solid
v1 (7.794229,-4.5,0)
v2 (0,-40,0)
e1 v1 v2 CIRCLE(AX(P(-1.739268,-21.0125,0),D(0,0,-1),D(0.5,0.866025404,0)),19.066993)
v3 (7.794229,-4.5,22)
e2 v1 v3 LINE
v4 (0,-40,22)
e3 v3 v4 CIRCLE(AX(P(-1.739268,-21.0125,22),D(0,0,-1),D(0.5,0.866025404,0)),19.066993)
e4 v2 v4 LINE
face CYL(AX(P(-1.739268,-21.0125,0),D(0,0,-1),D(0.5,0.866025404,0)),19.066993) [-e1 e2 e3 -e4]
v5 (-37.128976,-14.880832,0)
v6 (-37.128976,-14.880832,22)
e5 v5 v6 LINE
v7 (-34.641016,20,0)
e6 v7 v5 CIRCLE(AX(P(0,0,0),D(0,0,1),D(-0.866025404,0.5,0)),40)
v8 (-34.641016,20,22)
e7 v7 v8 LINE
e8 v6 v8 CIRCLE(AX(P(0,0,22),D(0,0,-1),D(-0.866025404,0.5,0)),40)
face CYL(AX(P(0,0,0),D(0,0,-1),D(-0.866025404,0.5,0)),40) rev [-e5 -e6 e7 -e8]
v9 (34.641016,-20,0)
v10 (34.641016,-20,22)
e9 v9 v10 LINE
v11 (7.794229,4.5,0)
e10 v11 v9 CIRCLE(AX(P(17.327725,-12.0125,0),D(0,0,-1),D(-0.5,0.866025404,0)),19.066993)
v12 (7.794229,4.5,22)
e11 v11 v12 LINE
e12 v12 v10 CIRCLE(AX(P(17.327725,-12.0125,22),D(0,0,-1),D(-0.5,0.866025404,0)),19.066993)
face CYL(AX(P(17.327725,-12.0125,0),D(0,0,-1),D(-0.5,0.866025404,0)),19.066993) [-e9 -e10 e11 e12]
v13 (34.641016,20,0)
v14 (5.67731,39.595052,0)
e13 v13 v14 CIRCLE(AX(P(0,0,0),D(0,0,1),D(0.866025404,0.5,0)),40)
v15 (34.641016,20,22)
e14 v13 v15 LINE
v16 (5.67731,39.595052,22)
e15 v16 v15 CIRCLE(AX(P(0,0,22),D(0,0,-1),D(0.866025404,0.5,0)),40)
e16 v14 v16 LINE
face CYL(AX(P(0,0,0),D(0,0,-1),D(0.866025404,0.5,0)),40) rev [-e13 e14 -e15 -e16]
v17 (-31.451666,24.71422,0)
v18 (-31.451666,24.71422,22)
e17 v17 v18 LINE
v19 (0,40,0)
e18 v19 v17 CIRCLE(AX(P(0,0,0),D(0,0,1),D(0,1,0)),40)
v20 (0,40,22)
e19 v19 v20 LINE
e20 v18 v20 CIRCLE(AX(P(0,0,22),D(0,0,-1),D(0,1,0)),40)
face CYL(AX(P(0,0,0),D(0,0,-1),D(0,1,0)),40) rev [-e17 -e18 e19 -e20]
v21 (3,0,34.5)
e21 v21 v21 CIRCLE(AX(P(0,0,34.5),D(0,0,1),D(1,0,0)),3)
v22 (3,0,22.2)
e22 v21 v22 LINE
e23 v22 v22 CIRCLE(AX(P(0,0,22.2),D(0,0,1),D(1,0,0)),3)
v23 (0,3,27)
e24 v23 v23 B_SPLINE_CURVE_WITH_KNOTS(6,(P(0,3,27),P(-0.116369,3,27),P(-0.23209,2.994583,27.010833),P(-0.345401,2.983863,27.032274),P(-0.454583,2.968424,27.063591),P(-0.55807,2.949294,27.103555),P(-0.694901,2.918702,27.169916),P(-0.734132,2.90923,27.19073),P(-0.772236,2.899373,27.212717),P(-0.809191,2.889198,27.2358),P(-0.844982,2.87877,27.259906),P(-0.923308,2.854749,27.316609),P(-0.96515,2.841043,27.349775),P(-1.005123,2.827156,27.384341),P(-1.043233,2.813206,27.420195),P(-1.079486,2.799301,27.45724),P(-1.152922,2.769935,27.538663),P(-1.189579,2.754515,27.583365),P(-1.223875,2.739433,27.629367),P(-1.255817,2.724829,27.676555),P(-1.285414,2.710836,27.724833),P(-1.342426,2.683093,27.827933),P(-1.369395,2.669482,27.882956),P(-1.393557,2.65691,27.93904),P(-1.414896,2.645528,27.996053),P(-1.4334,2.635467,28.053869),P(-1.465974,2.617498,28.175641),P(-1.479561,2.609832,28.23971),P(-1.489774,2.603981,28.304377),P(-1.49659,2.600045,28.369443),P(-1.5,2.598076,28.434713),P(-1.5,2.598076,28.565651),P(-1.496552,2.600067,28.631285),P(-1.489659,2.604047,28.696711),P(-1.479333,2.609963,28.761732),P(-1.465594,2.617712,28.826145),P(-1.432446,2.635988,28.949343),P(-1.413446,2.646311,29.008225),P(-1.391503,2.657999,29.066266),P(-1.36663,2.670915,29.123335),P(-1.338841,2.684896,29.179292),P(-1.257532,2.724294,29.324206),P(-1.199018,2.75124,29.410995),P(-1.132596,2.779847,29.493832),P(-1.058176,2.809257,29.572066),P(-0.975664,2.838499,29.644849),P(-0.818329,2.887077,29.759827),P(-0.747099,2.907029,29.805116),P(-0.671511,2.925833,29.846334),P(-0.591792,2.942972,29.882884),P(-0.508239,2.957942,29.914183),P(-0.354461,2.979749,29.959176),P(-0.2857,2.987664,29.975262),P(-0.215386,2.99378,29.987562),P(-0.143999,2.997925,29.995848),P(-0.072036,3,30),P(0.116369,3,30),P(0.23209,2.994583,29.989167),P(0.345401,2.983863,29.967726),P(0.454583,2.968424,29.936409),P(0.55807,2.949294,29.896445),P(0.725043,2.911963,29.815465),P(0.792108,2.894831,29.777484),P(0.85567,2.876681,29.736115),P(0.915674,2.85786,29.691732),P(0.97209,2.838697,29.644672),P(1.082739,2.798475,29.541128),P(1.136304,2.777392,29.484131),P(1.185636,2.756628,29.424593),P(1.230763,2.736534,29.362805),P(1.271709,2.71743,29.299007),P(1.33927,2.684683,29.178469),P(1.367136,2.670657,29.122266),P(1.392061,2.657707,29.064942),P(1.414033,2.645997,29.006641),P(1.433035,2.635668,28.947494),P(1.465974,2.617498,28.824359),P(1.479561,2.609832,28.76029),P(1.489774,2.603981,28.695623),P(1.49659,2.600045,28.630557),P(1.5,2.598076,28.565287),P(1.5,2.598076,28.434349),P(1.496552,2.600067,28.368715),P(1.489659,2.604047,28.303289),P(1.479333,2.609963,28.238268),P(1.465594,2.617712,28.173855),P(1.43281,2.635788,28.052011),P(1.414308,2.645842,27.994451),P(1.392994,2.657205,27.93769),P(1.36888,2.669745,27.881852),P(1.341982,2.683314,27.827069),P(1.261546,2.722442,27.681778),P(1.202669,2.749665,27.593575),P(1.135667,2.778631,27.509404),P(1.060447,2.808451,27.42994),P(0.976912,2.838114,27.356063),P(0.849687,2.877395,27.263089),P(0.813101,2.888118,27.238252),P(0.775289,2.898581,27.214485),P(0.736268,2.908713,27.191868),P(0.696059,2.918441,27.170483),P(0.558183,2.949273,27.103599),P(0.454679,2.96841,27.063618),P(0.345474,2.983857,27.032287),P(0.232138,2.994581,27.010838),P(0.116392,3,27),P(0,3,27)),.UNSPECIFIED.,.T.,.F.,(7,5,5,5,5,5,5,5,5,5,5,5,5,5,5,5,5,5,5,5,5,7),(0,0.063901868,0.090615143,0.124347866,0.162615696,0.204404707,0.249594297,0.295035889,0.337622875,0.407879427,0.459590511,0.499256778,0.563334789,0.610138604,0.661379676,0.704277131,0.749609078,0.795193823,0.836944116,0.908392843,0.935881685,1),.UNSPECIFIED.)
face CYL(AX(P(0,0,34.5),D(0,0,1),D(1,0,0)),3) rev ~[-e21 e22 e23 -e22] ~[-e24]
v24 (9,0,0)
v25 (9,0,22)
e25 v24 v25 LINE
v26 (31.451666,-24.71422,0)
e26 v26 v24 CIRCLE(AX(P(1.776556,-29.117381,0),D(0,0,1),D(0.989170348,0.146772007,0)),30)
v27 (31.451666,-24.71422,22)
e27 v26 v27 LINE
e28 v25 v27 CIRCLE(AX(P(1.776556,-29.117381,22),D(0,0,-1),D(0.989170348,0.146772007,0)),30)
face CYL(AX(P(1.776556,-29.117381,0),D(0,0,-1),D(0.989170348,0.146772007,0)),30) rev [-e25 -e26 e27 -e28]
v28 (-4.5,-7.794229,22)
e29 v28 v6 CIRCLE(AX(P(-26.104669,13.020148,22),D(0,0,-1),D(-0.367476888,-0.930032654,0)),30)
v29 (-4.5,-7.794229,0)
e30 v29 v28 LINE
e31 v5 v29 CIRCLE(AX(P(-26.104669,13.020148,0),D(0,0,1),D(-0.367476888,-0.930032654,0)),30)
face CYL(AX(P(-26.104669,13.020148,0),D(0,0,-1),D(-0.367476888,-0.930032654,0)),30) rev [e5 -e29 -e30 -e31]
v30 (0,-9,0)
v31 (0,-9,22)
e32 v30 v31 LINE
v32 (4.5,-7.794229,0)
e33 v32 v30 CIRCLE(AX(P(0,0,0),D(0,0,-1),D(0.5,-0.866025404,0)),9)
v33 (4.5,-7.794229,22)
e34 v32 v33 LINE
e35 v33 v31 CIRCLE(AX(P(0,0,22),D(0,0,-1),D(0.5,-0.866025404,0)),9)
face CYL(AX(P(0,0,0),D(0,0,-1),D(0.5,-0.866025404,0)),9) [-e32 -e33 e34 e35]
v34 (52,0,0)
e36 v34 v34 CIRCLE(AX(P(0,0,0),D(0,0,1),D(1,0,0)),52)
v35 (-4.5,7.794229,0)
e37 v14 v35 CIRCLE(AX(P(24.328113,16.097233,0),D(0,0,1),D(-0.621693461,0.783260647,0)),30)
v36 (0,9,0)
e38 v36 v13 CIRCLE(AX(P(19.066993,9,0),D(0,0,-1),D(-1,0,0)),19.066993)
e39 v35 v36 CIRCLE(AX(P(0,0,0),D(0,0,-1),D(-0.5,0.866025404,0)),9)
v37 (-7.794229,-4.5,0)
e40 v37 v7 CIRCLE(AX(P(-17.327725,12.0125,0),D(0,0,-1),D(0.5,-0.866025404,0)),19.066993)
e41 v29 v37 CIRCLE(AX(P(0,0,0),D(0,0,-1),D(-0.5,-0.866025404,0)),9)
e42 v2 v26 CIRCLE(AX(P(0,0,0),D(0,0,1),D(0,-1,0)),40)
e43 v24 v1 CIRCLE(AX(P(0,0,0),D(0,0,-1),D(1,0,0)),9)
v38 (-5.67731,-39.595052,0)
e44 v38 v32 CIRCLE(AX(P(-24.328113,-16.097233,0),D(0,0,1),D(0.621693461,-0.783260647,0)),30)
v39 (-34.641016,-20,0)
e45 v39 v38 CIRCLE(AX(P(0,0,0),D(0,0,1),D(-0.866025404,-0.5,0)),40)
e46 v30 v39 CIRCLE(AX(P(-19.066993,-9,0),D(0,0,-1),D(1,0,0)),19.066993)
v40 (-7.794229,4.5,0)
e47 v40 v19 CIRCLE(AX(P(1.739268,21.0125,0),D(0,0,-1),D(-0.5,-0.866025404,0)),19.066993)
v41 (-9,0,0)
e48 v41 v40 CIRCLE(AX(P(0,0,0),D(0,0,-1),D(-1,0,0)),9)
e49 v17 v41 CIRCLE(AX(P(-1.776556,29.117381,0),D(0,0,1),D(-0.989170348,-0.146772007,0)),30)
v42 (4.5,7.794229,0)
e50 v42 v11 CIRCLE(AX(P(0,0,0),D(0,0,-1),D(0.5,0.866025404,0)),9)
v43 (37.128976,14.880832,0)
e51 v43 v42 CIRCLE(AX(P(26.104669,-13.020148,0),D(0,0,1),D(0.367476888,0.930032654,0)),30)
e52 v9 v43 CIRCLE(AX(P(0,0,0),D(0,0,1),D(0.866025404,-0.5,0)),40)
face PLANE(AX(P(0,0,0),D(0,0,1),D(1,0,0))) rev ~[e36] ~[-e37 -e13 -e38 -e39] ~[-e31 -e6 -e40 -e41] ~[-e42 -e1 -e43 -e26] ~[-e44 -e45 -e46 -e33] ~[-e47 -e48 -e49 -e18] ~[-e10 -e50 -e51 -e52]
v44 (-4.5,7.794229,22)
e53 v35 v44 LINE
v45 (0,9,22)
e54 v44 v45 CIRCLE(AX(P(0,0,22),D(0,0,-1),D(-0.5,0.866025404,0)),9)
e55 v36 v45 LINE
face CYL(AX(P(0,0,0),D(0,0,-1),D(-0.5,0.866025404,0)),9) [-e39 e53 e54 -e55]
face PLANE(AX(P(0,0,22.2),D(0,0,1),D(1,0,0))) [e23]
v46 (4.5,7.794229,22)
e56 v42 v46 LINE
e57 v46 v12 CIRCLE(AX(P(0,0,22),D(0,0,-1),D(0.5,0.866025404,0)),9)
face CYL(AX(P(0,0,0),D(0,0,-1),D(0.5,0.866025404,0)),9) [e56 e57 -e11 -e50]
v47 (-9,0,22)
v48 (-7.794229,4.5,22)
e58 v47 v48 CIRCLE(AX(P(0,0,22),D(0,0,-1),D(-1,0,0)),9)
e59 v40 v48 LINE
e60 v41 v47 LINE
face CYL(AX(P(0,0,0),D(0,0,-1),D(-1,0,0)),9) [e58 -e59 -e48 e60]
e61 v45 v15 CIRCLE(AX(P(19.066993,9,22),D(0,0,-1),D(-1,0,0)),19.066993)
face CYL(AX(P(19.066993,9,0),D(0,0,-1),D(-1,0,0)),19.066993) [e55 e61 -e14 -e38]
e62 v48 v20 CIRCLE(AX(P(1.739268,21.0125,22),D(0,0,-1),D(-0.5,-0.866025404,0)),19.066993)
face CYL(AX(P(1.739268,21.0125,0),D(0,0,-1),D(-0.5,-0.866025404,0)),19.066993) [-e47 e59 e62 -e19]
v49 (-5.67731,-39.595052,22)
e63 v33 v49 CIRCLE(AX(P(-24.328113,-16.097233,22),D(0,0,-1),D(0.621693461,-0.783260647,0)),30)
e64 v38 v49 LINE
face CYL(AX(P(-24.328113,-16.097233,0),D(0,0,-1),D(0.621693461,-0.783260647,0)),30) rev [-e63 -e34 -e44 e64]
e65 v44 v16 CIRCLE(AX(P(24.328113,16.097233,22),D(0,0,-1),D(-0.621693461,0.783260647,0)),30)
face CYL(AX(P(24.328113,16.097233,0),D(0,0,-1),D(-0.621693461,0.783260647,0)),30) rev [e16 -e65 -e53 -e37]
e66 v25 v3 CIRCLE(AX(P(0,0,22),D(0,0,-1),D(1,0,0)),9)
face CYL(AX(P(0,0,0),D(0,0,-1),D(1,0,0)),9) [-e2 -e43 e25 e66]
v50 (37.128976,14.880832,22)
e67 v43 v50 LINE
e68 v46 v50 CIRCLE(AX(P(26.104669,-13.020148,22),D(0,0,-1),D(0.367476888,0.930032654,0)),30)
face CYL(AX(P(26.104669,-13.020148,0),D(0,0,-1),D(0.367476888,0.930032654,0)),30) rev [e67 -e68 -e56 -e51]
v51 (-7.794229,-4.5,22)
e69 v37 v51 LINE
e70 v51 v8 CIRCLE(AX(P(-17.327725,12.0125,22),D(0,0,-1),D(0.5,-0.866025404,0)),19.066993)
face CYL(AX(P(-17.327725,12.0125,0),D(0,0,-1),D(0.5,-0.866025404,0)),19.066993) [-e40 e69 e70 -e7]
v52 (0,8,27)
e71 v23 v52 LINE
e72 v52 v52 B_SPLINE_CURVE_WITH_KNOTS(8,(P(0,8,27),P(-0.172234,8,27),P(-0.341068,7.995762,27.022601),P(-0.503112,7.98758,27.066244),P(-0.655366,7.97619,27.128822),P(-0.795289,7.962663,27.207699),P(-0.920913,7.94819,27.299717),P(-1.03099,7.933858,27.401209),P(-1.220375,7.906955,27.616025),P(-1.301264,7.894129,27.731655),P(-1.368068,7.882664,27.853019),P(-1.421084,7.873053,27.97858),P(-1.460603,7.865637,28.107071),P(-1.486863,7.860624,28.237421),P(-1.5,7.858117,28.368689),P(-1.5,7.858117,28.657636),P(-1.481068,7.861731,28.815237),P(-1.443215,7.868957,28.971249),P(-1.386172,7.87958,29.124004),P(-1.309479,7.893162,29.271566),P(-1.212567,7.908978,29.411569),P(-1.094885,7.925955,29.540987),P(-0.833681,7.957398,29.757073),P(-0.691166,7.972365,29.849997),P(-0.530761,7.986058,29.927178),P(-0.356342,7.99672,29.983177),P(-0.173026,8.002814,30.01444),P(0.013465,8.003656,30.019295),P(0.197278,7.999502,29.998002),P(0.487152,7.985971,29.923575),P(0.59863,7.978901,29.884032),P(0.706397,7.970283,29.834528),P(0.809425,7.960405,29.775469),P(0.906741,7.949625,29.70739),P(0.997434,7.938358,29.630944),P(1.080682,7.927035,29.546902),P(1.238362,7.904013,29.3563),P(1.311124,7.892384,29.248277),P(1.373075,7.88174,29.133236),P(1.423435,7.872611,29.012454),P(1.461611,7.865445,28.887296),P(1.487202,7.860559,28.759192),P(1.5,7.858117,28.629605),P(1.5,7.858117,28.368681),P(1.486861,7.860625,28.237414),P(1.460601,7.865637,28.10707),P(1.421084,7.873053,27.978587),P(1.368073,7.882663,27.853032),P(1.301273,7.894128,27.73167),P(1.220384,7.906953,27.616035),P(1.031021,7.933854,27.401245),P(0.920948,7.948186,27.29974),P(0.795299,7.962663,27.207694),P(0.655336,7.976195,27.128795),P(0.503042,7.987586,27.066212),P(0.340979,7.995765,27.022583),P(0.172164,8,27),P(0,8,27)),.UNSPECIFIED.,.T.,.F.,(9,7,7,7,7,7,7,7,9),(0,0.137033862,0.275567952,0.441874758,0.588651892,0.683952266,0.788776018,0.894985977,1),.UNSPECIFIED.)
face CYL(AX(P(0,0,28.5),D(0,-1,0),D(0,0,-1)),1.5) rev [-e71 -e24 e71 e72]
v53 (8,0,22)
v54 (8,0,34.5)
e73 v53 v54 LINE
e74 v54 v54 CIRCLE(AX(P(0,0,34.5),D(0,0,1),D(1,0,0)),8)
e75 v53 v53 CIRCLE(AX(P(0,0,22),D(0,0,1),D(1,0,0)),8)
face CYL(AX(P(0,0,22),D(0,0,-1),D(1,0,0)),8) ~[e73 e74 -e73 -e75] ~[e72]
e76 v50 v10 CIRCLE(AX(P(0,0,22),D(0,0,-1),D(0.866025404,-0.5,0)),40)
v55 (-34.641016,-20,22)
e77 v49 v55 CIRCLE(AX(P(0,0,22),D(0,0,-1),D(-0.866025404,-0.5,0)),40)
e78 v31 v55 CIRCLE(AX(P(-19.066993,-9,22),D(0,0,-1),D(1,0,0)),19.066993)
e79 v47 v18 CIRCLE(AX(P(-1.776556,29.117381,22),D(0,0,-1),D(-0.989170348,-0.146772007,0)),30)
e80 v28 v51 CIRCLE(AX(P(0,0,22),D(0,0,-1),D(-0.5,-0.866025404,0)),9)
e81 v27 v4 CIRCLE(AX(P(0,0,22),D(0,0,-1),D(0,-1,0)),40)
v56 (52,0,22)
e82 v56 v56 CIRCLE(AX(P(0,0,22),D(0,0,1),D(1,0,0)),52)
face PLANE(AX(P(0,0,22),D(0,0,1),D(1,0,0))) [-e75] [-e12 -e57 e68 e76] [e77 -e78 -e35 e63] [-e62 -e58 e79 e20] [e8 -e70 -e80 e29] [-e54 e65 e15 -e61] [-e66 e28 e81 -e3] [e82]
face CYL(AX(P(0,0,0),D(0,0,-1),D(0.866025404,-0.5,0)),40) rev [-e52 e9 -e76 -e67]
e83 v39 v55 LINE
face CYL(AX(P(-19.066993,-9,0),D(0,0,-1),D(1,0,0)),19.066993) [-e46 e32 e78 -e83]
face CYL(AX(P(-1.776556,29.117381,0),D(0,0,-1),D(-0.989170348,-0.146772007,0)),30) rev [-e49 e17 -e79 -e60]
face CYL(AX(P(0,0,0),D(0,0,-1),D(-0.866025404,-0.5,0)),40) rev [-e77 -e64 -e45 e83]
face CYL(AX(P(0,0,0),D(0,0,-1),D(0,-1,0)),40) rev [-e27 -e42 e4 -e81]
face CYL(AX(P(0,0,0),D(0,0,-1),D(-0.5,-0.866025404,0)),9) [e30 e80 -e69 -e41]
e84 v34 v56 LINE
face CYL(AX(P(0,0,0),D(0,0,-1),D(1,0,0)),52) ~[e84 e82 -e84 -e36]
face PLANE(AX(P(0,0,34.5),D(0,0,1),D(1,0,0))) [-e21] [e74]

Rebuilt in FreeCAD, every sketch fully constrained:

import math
import FreeCAD as App
import Part
import Sketcher

doc = App.newDocument("Part")
params = doc.addObject("Spreadsheet::Sheet", "Params")
for row, (alias, value) in enumerate([
    ("sketch1_diameter", "104 mm"),
    ("pad1_length", "22 mm"),
    ("sketch2_diameter", "16 mm"),
    ("pad2_length", "12.5 mm"),
    ("sketch3_diameter", "6 mm"),
    ("pocket1_length", "12.3 mm"),
    ("sketch4_diameter", "3 mm"),
    ("sketch5_radius", "9 mm"),
    ("sketch5_radius2", "30 mm"),
    ("sketch5_radius3", "40 mm"),
], start=1):
    params.set(f"A{row}", alias)
    params.set(f"B{row}", "=" + value)
    params.setAlias(f"B{row}", alias)

body = doc.addObject("PartDesign::Body", "Body")

sketch1 = body.newObject("Sketcher::SketchObject", "Sketch")
sketch1.AttachmentSupport = (doc.getObject("XY_Plane"), [""])
sketch1.MapMode = "FlatFace"
sketch1.addGeometry(Part.Circle(App.Vector(0, 0, 0), App.Vector(0, 0, 1), 52), False)
sketch1.addConstraint(Sketcher.Constraint("Coincident", 0, 3, -1, 1))
sketch1.addConstraint(Sketcher.Constraint("Diameter", 0, 104.0))
sketch1.setExpression("Constraints[1]", "Params.sketch1_diameter")
pad1 = body.newObject("PartDesign::Pad", "Pad")
pad1.Profile = sketch1
pad1.setExpression("Length", "Params.pad1_length")

sketch2 = body.newObject("Sketcher::SketchObject", "Sketch001")
sketch2.AttachmentSupport = (doc.getObject("XY_Plane"), [""])
sketch2.MapMode = "FlatFace"
sketch2.AttachmentOffset = App.Placement(App.Vector(0, 0, 22), App.Rotation())
sketch2.addGeometry(Part.Circle(App.Vector(0, 0, 0), App.Vector(0, 0, 1), 8), False)
sketch2.addConstraint(Sketcher.Constraint("Coincident", 0, 3, -1, 1))
sketch2.addConstraint(Sketcher.Constraint("Diameter", 0, 16.0))
sketch2.setExpression("Constraints[1]", "Params.sketch2_diameter")
pad2 = body.newObject("PartDesign::Pad", "Pad001")
pad2.Profile = sketch2
pad2.setExpression("Length", "Params.pad2_length")

sketch3 = body.newObject("Sketcher::SketchObject", "Sketch002")
sketch3.AttachmentSupport = (doc.getObject("XY_Plane"), [""])
sketch3.MapMode = "FlatFace"
sketch3.AttachmentOffset = App.Placement(App.Vector(0, 0, 34.5), App.Rotation())
sketch3.addGeometry(Part.Circle(App.Vector(0, 0, 0), App.Vector(0, 0, 1), 3), False)
sketch3.addConstraint(Sketcher.Constraint("Coincident", 0, 3, -1, 1))
sketch3.addConstraint(Sketcher.Constraint("Diameter", 0, 6.0))
sketch3.setExpression("Constraints[1]", "Params.sketch3_diameter")
pocket1 = body.newObject("PartDesign::Pocket", "Pocket")
pocket1.Profile = sketch3
pocket1.setExpression("Length", "Params.pocket1_length")

sketch4 = body.newObject("Sketcher::SketchObject", "Sketch003")
sketch4.AttachmentSupport = (doc.getObject("XZ_Plane"), [""])
sketch4.MapMode = "FlatFace"
sketch4.addGeometry(Part.Circle(App.Vector(0, 28.5, 0), App.Vector(0, 0, 1), 1.5), False)
sketch4.addConstraint(Sketcher.Constraint("PointOnObject", 0, 3, -2))
sketch4.addConstraint(Sketcher.Constraint("Diameter", 0, 3.0))
sketch4.addConstraint(Sketcher.Constraint("DistanceY", -1, 1, 0, 3, 28.5))
sketch4.setExpression("Constraints[1]", "Params.sketch4_diameter")
pocket2 = body.newObject("PartDesign::Pocket", "Pocket001")
pocket2.Profile = sketch4
pocket2.Type = "ThroughAll"

sketch5 = body.newObject("Sketcher::SketchObject", "Sketch004")
sketch5.AttachmentSupport = (doc.getObject("XY_Plane"), [""])
sketch5.MapMode = "FlatFace"
sketch5.addGeometry(Part.ArcOfCircle(Part.Circle(App.Vector(1.7, 21, 0), App.Vector(0, 0, 1), 19.1), math.radians(95), math.radians(240)), False)
sketch5.addGeometry(Part.ArcOfCircle(Part.Circle(App.Vector(0, 0, 0), App.Vector(0, 0, 1), 9), math.radians(150), math.radians(180)), False)
sketch5.addGeometry(Part.ArcOfCircle(Part.Circle(App.Vector(-1.8, 29.1, 0), App.Vector(0, 0, 1), 30), math.radians(-172), math.radians(-104)), False)
sketch5.addGeometry(Part.ArcOfCircle(Part.Circle(App.Vector(0, 0, 0), App.Vector(0, 0, 1), 40), math.radians(90), math.radians(142)), False)
sketch5.addConstraint(Sketcher.Constraint("Coincident", 0, 2, 1, 1))
sketch5.addConstraint(Sketcher.Constraint("Coincident", 1, 2, 2, 2))
sketch5.addConstraint(Sketcher.Constraint("Coincident", 2, 1, 3, 2))
sketch5.addConstraint(Sketcher.Constraint("Coincident", 3, 1, 0, 1))
sketch5.addConstraint(Sketcher.Constraint("Coincident", 1, 3, -1, 1))
sketch5.addConstraint(Sketcher.Constraint("Coincident", 3, 3, -1, 1))
sketch5.addConstraint(Sketcher.Constraint("PointOnObject", 1, 2, -1))
sketch5.addConstraint(Sketcher.Constraint("PointOnObject", 3, 1, -2))
sketch5.addConstraint(Sketcher.Constraint("Radius", 1, 9.0))
sketch5.addConstraint(Sketcher.Constraint("Radius", 2, 30.0))
sketch5.addConstraint(Sketcher.Constraint("Radius", 3, 40.0))
sketch5.addConstraint(Sketcher.Constraint("DistanceY", -1, 1, 0, 2, 4.5))
sketch5.addConstraint(Sketcher.Constraint("Radius", 0, 19.066993))
sketch5.addConstraint(Sketcher.Constraint("DistanceY", -1, 1, 2, 3, 29.117381))
sketch5.setExpression("Constraints[8]", "Params.sketch5_radius")
sketch5.setExpression("Constraints[9]", "Params.sketch5_radius2")
sketch5.setExpression("Constraints[10]", "Params.sketch5_radius3")
pocket3 = body.newObject("PartDesign::Pocket", "Pocket002")
pocket3.Profile = sketch5
pocket3.Type = "ThroughAll"
pocket3.Reversed = True
doc.recompute()

polarpattern = body.newObject("PartDesign::PolarPattern", "PolarPattern")
polarpattern.Originals = [pocket3]
polarpattern.Axis = (doc.getObject("Z_Axis"), [""])
polarpattern.Angle = 360
polarpattern.Occurrences = 6
body.Tip = polarpattern

doc.recompute()
